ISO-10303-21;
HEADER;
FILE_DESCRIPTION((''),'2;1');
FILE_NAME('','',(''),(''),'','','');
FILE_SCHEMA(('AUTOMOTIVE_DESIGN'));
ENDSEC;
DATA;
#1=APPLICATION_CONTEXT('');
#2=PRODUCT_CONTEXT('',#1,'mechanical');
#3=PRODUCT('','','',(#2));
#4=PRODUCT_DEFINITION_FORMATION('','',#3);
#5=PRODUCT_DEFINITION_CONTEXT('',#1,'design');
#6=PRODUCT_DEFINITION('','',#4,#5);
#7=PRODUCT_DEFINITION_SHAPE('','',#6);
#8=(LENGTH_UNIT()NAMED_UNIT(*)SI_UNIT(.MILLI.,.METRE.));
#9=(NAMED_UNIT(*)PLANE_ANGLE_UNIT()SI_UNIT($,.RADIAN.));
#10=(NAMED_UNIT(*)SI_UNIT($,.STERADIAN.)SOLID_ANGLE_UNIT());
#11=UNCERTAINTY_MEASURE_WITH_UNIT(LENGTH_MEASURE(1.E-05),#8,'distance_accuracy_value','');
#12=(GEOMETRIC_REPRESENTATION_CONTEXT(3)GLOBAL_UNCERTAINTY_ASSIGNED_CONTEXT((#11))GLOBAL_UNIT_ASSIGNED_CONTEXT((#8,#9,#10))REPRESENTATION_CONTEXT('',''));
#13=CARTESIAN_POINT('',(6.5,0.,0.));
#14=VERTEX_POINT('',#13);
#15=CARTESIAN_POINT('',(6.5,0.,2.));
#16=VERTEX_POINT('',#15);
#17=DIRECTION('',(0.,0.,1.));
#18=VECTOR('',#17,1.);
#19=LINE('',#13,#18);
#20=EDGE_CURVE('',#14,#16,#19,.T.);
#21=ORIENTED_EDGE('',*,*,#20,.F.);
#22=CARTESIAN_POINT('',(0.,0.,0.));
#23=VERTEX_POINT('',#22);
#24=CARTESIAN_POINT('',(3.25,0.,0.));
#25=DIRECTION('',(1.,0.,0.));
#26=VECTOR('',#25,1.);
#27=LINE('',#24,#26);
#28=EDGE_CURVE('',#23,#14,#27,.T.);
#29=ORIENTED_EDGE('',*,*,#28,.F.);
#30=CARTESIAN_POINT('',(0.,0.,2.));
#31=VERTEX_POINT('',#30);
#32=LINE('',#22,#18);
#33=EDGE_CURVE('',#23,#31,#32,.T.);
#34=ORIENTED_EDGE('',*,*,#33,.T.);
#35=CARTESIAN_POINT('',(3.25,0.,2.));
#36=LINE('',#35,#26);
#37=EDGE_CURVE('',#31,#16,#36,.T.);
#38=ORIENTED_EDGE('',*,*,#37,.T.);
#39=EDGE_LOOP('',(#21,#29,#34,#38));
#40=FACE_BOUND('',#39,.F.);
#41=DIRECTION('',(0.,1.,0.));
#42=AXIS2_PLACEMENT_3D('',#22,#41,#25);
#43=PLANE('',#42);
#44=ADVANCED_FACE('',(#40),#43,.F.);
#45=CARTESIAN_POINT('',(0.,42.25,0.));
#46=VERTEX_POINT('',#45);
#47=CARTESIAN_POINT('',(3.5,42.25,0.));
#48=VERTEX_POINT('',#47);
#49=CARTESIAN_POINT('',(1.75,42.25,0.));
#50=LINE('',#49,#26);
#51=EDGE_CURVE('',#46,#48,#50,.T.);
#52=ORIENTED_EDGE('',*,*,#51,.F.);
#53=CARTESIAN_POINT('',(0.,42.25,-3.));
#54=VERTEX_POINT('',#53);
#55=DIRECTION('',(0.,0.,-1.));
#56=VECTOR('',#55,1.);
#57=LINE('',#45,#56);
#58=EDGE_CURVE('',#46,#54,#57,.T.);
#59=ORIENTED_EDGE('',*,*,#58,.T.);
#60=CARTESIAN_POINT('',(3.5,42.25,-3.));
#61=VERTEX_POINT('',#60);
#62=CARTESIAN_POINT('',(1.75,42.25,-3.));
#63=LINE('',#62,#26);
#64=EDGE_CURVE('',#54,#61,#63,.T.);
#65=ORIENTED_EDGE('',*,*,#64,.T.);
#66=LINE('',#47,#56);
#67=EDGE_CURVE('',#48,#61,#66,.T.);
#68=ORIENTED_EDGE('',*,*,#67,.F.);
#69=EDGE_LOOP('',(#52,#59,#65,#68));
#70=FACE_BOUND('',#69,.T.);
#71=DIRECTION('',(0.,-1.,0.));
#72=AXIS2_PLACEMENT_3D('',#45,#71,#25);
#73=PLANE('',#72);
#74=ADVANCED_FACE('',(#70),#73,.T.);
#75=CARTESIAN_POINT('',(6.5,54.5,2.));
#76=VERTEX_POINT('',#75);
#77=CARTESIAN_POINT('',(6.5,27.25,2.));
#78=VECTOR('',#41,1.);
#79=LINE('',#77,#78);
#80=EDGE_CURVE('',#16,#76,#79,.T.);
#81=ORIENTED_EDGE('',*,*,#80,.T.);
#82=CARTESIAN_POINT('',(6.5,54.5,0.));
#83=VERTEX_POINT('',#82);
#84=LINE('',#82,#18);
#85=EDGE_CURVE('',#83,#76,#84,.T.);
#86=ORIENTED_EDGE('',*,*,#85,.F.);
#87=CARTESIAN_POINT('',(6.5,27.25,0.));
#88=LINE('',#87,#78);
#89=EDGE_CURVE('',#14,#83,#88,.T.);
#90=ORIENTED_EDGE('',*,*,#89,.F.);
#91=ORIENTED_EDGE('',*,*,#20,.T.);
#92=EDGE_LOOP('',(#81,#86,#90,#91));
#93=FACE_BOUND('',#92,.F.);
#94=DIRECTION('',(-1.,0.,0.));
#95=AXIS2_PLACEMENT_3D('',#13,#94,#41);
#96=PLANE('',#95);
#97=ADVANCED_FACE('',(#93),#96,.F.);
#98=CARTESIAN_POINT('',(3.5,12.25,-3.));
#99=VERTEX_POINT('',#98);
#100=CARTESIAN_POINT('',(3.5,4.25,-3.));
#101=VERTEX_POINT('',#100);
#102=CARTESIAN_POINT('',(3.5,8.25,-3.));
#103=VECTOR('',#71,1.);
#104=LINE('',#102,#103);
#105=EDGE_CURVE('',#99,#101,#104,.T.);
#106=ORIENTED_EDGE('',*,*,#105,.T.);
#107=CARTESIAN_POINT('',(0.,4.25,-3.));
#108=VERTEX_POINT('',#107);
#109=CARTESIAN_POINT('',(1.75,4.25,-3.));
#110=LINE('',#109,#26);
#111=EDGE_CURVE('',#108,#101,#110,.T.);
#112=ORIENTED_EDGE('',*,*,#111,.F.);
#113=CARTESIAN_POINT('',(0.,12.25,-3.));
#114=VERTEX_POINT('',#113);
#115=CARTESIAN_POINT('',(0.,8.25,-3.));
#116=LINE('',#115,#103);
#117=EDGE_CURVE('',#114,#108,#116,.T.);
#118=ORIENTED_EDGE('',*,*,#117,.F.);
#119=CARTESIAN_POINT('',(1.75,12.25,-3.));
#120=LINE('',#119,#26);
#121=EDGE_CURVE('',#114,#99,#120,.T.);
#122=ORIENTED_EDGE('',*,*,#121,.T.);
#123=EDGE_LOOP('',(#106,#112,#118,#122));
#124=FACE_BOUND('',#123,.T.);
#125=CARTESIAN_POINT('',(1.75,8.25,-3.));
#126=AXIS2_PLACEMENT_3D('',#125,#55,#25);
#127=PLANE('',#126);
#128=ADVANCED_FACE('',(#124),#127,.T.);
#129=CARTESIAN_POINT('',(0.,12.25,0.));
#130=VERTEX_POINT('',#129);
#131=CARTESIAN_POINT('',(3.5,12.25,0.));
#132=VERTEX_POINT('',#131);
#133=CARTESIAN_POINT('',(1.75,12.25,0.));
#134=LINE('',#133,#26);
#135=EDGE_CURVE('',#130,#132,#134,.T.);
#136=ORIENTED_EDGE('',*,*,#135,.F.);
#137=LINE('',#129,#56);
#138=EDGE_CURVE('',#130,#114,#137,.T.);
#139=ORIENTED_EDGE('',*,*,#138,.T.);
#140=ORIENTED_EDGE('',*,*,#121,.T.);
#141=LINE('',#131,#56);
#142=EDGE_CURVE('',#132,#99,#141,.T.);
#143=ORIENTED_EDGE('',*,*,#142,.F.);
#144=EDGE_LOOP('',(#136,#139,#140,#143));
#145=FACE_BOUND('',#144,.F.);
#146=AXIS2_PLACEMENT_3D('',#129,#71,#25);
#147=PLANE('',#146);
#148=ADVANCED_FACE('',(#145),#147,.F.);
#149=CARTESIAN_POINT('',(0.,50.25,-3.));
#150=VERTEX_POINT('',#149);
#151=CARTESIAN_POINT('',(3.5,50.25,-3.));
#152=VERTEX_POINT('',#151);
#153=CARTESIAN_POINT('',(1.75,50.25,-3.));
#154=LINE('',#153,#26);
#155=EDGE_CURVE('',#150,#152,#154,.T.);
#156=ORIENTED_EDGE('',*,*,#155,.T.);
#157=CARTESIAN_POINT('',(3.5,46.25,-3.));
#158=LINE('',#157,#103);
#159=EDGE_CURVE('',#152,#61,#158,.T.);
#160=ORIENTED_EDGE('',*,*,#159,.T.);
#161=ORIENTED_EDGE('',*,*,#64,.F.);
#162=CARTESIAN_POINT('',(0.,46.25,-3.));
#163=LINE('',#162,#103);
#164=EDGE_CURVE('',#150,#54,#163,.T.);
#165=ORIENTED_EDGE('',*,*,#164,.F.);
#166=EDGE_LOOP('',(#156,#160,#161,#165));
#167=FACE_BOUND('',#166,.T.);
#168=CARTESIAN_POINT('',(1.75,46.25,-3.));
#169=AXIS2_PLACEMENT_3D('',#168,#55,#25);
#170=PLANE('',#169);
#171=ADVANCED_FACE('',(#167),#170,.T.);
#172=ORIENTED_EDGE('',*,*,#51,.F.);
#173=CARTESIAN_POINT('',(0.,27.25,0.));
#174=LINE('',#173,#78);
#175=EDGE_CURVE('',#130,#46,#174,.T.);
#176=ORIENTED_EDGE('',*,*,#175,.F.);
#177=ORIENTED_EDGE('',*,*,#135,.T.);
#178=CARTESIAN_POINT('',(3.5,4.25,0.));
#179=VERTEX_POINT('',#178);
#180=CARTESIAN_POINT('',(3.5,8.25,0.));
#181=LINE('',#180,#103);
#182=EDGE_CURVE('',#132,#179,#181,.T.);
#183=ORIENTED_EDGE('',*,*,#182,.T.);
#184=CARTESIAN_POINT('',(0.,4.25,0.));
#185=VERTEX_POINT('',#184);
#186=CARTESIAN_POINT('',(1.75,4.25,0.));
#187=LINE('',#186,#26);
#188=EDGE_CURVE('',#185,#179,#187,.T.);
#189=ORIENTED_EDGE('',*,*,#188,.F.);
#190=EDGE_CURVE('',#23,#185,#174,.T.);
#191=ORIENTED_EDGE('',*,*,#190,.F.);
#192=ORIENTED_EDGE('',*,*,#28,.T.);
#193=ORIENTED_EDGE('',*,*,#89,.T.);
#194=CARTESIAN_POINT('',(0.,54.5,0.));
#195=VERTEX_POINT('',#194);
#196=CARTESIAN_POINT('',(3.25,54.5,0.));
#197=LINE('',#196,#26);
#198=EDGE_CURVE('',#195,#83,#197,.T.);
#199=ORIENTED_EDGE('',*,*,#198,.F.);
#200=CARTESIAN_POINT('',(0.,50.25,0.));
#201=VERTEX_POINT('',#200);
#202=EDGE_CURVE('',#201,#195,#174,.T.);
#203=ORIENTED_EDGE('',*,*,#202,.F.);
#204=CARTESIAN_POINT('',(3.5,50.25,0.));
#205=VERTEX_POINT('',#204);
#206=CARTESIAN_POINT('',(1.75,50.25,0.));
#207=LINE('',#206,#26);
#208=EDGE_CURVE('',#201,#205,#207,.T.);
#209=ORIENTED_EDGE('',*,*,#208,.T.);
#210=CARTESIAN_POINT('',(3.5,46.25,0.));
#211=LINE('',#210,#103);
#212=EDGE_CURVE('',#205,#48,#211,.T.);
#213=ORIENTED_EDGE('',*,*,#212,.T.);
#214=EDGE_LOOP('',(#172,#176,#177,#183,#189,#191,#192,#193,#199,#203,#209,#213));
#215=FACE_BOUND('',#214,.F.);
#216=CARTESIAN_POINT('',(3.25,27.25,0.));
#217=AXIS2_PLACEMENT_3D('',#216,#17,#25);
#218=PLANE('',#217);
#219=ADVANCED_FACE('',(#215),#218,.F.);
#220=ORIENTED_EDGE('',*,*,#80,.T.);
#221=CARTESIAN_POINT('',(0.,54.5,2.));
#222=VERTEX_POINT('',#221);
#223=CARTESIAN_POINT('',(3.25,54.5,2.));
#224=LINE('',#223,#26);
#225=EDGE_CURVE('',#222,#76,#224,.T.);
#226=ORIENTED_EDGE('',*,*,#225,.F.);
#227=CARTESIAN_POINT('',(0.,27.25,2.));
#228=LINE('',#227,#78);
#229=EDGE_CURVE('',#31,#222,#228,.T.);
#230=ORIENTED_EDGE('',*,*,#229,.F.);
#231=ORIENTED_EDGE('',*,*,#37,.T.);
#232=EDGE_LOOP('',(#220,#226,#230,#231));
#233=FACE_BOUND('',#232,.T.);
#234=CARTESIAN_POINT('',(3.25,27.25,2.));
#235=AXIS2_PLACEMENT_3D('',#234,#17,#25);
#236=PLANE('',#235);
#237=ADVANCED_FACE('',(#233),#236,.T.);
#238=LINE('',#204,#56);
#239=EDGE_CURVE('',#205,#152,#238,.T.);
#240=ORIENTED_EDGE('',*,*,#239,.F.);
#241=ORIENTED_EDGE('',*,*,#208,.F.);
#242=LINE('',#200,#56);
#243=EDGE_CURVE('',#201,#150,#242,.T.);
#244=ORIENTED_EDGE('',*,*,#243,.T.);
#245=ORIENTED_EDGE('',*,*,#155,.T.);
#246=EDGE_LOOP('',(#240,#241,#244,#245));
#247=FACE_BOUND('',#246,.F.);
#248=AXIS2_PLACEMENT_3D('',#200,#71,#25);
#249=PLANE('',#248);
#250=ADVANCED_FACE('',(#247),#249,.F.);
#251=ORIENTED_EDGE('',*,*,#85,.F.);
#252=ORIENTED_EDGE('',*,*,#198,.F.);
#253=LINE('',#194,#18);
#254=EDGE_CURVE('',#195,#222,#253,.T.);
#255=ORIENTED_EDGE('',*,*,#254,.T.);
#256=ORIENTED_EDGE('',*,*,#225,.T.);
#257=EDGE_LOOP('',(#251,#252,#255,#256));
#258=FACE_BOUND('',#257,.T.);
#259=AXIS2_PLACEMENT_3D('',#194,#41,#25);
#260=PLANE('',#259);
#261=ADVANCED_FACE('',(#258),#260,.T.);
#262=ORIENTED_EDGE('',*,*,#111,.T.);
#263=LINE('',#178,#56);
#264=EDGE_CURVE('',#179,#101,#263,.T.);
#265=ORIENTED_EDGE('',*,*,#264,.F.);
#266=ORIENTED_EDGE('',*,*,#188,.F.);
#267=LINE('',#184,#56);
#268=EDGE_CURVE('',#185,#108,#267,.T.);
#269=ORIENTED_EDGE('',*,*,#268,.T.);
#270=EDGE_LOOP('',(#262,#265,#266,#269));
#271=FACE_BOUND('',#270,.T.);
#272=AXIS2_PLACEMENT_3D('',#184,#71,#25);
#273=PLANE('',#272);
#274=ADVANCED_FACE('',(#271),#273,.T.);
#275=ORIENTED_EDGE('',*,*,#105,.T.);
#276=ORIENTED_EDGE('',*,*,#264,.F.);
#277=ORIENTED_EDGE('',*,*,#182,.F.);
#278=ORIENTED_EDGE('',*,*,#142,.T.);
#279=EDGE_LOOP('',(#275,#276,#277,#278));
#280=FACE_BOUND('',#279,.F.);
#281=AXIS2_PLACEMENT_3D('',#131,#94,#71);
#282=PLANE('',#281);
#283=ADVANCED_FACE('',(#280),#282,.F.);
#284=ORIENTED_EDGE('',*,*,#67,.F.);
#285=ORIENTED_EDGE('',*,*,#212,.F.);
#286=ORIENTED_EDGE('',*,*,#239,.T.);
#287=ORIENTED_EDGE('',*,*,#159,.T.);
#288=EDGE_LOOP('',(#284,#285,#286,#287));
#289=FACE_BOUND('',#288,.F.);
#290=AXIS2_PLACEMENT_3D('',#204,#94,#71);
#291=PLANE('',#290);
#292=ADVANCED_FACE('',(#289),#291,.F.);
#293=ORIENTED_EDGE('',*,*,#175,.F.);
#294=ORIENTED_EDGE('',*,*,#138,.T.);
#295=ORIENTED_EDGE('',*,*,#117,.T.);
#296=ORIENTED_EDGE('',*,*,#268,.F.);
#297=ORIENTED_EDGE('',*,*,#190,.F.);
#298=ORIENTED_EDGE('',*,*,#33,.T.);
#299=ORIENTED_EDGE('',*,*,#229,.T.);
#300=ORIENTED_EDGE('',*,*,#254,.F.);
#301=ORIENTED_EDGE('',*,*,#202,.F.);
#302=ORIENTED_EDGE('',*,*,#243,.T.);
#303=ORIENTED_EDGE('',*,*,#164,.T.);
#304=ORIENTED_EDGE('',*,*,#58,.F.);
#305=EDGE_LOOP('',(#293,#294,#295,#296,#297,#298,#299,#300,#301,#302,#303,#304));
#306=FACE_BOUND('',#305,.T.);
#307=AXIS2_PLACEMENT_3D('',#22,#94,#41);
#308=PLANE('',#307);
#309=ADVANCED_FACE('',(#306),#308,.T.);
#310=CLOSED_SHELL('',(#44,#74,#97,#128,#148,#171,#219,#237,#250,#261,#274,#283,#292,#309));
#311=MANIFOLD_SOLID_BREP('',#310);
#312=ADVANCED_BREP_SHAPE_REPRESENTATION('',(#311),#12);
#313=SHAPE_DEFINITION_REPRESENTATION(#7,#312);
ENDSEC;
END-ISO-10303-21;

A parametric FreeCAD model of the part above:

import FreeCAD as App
import Part
import Sketcher

V = App.Vector


def add_polygon(sketch, points):
    """Adds a closed chain of lines whose ends are joined by coincident constraints."""
    first, n = sketch.GeometryCount, len(points)
    for a, b in zip(points, points[1:] + points[:1]):
        sketch.addGeometry(Part.LineSegment(App.Vector(*a, 0), App.Vector(*b, 0)), False)
    for i in range(n):
        sketch.addConstraint(Sketcher.Constraint("Coincident", first + i, 2, first + (i + 1) % n, 1))

doc = App.newDocument("Part")
params = doc.addObject("Spreadsheet::Sheet", "Params")
for row, (alias, value) in enumerate([
    ("sketch1_width", "6.5 mm"),
    ("sketch1_height", "54.5 mm"),
    ("pad1_length", "2 mm"),
    ("sketch2_height", "8 mm"),
    ("sketch2_width", "3.5 mm"),
    ("pad2_length", "3 mm"),
], start=1):
    params.set(f"A{row}", alias)
    params.set(f"B{row}", "=" + value)
    params.setAlias(f"B{row}", alias)

body = doc.addObject("PartDesign::Body", "Body")

sketch1 = body.newObject("Sketcher::SketchObject", "Sketch")
sketch1.AttachmentSupport = (doc.getObject("XY_Plane"), [""])
sketch1.MapMode = "FlatFace"
add_polygon(sketch1, [(0, 54), (0, 0), (6, 0), (6, 54)])
sketch1.addConstraint([
    Sketcher.Constraint("Vertical", 0),
    Sketcher.Constraint("Horizontal", 1),
    Sketcher.Constraint("Vertical", 2),
    Sketcher.Constraint("Horizontal", 3),
    Sketcher.Constraint("Coincident", 0, 2, -1, 1),
    Sketcher.Constraint("DistanceX", 1, 1, 1, 2, 6.5),
    Sketcher.Constraint("DistanceY", 0, 2, 0, 1, 54.5),
])
sketch1.setExpression("Constraints[9]", "Params.sketch1_width")
sketch1.setExpression("Constraints[10]", "Params.sketch1_height")
pad1 = body.newObject("PartDesign::Pad", "Pad")
pad1.Profile = sketch1
pad1.setExpression("Length", "Params.pad1_length")

sketch2 = body.newObject("Sketcher::SketchObject", "Sketch001")
sketch2.AttachmentSupport = (doc.getObject("XY_Plane"), [""])
sketch2.MapMode = "FlatFace"
add_polygon(sketch2, [(0, 42.2), (0, 50.2), (3.5, 50.2), (3.5, 42.2)])
add_polygon(sketch2, [(0, 4.2), (0, 12.2), (3.5, 12.2), (3.5, 4.2)])
sketch2.addConstraint([
    Sketcher.Constraint("Vertical", 0),
    Sketcher.Constraint("Horizontal", 1),
    Sketcher.Constraint("Vertical", 2),
    Sketcher.Constraint("Horizontal", 3),
    Sketcher.Constraint("Vertical", 4),
    Sketcher.Constraint("Horizontal", 5),
    Sketcher.Constraint("Vertical", 6),
    Sketcher.Constraint("Horizontal", 7),
    Sketcher.Constraint("PointOnObject", 0, 2, -2),
    Sketcher.Constraint("PointOnObject", 4, 2, -2),
    Sketcher.Constraint("Vertical", 2, 2, 5, 2),
    Sketcher.Constraint("Equal", 2, 4),
    Sketcher.Constraint("DistanceY", 0, 1, 0, 2, 8.0),
    Sketcher.Constraint("DistanceX", 1, 1, 1, 2, 3.5),
    Sketcher.Constraint("DistanceY", 4, 2, 3, 2, 30.0),
    Sketcher.Constraint("DistanceY", -1, 1, 0, 2, 50.25),
])
sketch2.setExpression("Constraints[20]", "Params.sketch2_height")
sketch2.setExpression("Constraints[21]", "Params.sketch2_width")
pad2 = body.newObject("PartDesign::Pad", "Pad001")
pad2.Profile = sketch2
pad2.setExpression("Length", "Params.pad2_length")
pad2.Reversed = True

doc.recompute()
